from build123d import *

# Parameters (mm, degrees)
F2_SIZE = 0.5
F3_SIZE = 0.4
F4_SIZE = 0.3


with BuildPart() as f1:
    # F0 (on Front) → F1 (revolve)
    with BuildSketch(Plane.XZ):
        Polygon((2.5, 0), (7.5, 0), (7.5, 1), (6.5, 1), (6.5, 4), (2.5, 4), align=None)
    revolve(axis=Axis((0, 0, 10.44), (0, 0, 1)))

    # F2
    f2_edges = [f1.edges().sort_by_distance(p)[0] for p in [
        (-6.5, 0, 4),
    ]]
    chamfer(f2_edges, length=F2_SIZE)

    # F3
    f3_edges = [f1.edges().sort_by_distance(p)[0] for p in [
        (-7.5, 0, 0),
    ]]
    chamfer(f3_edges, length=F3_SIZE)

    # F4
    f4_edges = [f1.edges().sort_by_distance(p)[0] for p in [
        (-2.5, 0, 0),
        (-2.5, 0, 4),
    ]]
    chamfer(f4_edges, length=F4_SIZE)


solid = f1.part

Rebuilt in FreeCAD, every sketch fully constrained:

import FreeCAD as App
import Part
import Sketcher

V = App.Vector


def edges_at(feature, points):
    """Names of the edges that pass closest to the given points."""
    edges = feature.Shape.Edges
    near = lambda p: min(range(len(edges)), key=lambda i: edges[i].distToShape(Part.Vertex(*p))[0])
    return sorted({f"Edge{near(p) + 1}" for p in points})


def add_polygon(sketch, points):
    """Adds a closed chain of lines whose ends are joined by coincident constraints."""
    first, n = sketch.GeometryCount, len(points)
    for a, b in zip(points, points[1:] + points[:1]):
        sketch.addGeometry(Part.LineSegment(App.Vector(*a, 0), App.Vector(*b, 0)), False)
    for i in range(n):
        sketch.addConstraint(Sketcher.Constraint("Coincident", first + i, 2, first + (i + 1) % n, 1))

doc = App.newDocument("Part")
params = doc.addObject("Spreadsheet::Sheet", "Params")
for row, (alias, value) in enumerate([
    ("sketch1_width", "5 mm"),
    ("sketch1_width2", "1 mm"),
    ("revolution_angle", "360 deg"),
    ("chamfer_size", "0.5 mm"),
    ("chamfer2_size", "0.4 mm"),
    ("chamfer3_size", "0.3 mm"),
], start=1):
    params.set(f"A{row}", alias)
    params.set(f"B{row}", "=" + value)
    params.setAlias(f"B{row}", alias)

body = doc.addObject("PartDesign::Body", "Body")

# Sketch on XZ plane
sketch1 = body.newObject("Sketcher::SketchObject", "Sketch")
sketch1.AttachmentSupport = (doc.getObject("XZ_Plane"), [""])
sketch1.MapMode = "FlatFace"
add_polygon(sketch1, [(2.5, 0), (7.5, 0), (7.5, 1), (6.5, 1), (6.5, 4), (2.5, 4)])  # lines 0-5
sketch1.addConstraint(Sketcher.Constraint("Horizontal", 0))
sketch1.addConstraint(Sketcher.Constraint("Vertical", 1))
sketch1.addConstraint(Sketcher.Constraint("Horizontal", 2))
sketch1.addConstraint(Sketcher.Constraint("Vertical", 3))
sketch1.addConstraint(Sketcher.Constraint("Horizontal", 4))
sketch1.addConstraint(Sketcher.Constraint("Vertical", 5))
sketch1.addConstraint(Sketcher.Constraint("PointOnObject", 0, 2, -1))
sketch1.addConstraint(Sketcher.Constraint("Equal", 2, 1))
sketch1.addConstraint(Sketcher.Constraint("Equal", 4, 5))
sketch1.addConstraint(Sketcher.Constraint("DistanceX", 0, 1, 0, 2, 5.0))
sketch1.addConstraint(Sketcher.Constraint("DistanceX", 2, 2, 2, 1, 1.0))
sketch1.addConstraint(Sketcher.Constraint("DistanceX", -1, 1, 0, 2, 7.5))
sketch1.setExpression("Constraints[15]", "Params.sketch1_width")
sketch1.setExpression("Constraints[16]", "Params.sketch1_width2")
revolution = body.newObject("PartDesign::Revolution", "Revolution")
revolution.Profile = sketch1
revolution.ReferenceAxis = (sketch1, ["V_Axis"])
revolution.setExpression("Angle", "Params.revolution_angle")
doc.recompute()

chamfer = body.newObject("PartDesign::Chamfer", "Chamfer")
chamfer.Base = (revolution, edges_at(revolution, [(-6.5, 0, 4)]))
chamfer.setExpression("Size", "Params.chamfer_size")
doc.recompute()

chamfer2 = body.newObject("PartDesign::Chamfer", "Chamfer001")
chamfer2.Base = (chamfer, edges_at(chamfer, [(-7.5, 0, 0)]))
chamfer2.setExpression("Size", "Params.chamfer2_size")
doc.recompute()

chamfer3 = body.newObject("PartDesign::Chamfer", "Chamfer002")
chamfer3.Base = (chamfer2, edges_at(chamfer2, [(-2.5, 0, 0), (-2.5, 0, 4)]))
chamfer3.setExpression("Size", "Params.chamfer3_size")

doc.recompute()
